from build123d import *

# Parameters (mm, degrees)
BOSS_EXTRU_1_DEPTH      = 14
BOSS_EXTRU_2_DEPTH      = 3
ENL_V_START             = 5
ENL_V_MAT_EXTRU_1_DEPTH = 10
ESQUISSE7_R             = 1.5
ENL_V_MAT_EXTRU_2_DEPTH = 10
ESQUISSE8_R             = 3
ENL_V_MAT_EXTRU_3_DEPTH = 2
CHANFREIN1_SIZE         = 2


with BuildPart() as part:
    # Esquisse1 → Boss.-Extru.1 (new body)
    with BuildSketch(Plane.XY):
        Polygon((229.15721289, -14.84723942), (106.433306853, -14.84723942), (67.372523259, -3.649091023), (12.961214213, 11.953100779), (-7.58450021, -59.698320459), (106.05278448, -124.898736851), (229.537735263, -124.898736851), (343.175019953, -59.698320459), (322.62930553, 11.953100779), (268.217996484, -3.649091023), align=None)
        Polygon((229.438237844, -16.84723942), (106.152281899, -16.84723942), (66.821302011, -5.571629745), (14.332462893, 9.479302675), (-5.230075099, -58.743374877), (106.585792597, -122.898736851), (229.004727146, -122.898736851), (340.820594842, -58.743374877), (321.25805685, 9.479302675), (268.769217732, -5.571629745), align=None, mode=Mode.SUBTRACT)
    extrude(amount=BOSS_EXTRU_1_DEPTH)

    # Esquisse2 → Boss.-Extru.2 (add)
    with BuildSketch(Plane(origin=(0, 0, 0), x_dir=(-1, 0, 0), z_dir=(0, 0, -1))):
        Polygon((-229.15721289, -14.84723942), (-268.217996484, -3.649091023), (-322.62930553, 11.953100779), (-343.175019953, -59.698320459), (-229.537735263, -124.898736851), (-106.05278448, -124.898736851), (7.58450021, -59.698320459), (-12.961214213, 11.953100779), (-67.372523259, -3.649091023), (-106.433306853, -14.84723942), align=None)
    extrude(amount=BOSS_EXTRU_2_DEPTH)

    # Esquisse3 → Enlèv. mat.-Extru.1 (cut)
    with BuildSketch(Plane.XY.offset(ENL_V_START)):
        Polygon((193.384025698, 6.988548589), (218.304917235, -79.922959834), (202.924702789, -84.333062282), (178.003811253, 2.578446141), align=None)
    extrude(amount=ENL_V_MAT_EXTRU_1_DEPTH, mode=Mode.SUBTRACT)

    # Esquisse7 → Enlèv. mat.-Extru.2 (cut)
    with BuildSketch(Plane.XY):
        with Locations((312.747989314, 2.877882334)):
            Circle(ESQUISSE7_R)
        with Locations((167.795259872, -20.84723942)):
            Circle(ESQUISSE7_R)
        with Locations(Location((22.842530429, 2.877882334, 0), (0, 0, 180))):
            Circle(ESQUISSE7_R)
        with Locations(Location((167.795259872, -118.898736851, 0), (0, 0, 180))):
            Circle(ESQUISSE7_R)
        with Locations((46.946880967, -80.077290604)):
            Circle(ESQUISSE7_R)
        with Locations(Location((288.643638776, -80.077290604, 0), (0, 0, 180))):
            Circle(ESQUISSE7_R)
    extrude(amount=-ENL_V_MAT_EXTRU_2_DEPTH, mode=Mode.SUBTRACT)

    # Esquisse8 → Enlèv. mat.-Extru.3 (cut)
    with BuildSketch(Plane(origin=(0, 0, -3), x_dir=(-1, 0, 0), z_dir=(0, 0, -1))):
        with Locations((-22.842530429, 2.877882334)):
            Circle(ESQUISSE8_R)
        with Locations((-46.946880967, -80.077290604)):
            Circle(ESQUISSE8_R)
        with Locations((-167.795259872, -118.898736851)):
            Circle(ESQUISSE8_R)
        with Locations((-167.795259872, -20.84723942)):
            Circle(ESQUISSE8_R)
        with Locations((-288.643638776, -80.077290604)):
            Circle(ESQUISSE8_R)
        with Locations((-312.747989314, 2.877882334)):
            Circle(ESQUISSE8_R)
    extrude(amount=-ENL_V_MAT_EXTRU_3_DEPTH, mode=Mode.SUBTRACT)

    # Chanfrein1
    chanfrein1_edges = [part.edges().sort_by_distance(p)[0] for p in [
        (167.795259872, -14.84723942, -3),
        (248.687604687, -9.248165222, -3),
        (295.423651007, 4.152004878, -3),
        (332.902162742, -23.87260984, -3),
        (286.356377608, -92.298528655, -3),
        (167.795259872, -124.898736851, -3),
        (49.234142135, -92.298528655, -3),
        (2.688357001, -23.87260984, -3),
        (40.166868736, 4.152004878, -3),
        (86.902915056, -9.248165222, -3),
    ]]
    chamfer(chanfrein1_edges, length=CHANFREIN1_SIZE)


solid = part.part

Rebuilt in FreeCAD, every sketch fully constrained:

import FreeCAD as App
import Part
import Sketcher
Q = App.Units.Quantity


def edges_at(feature, points):
    """Names of the edges that pass closest to the given points."""
    edges = feature.Shape.Edges
    near = lambda p: min(range(len(edges)), key=lambda i: edges[i].distToShape(Part.Vertex(*p))[0])
    return sorted({f"Edge{near(p) + 1}" for p in points})

doc = App.newDocument("Part")
body = doc.addObject("PartDesign::Body", "Body")

# Sketch on XY plane
sketch1 = body.newObject("Sketcher::SketchObject", "Sketch")
sketch1.AttachmentSupport = (doc.getObject("XY_Plane"), [""])
sketch1.MapMode = "FlatFace"
sketch1.addGeometry(Part.LineSegment(App.Vector(229.157213, -14.847239, 0), App.Vector(106.433307, -14.847239, 0)), False)
sketch1.addGeometry(Part.LineSegment(App.Vector(106.433307, -14.847239, 0), App.Vector(67.372523, -3.649091, 0)), False)
sketch1.addGeometry(Part.LineSegment(App.Vector(67.372523, -3.649091, 0), App.Vector(12.961214, 11.953101, 0)), False)
sketch1.addGeometry(Part.LineSegment(App.Vector(12.961214, 11.953101, 0), App.Vector(-7.5845, -59.69832, 0)), False)
sketch1.addGeometry(Part.LineSegment(App.Vector(-7.5845, -59.69832, 0), App.Vector(106.052784, -124.898737, 0)), False)
sketch1.addGeometry(Part.LineSegment(App.Vector(106.052784, -124.898737, 0), App.Vector(229.537735, -124.898737, 0)), False)
sketch1.addGeometry(Part.LineSegment(App.Vector(229.537735, -124.898737, 0), App.Vector(343.17502, -59.69832, 0)), False)
sketch1.addGeometry(Part.LineSegment(App.Vector(343.17502, -59.69832, 0), App.Vector(322.629306, 11.953101, 0)), False)
sketch1.addGeometry(Part.LineSegment(App.Vector(322.629306, 11.953101, 0), App.Vector(268.217996, -3.649091, 0)), False)
sketch1.addGeometry(Part.LineSegment(App.Vector(268.217996, -3.649091, 0), App.Vector(229.157213, -14.847239, 0)), False)
sketch1.addGeometry(Part.LineSegment(App.Vector(106.152282, -16.847239, 0), App.Vector(229.438238, -16.847239, 0)), False)
sketch1.addGeometry(Part.LineSegment(App.Vector(229.438238, -16.847239, 0), App.Vector(268.769218, -5.57163, 0)), False)
sketch1.addGeometry(Part.LineSegment(App.Vector(268.769218, -5.57163, 0), App.Vector(321.258057, 9.479303, 0)), False)
sketch1.addGeometry(Part.LineSegment(App.Vector(321.258057, 9.479303, 0), App.Vector(340.820595, -58.743375, 0)), False)
sketch1.addGeometry(Part.LineSegment(App.Vector(340.820595, -58.743375, 0), App.Vector(229.004727, -122.898737, 0)), False)
sketch1.addGeometry(Part.LineSegment(App.Vector(229.004727, -122.898737, 0), App.Vector(106.585793, -122.898737, 0)), False)
sketch1.addGeometry(Part.LineSegment(App.Vector(106.585793, -122.898737, 0), App.Vector(-5.230075, -58.743375, 0)), False)
sketch1.addGeometry(Part.LineSegment(App.Vector(-5.230075, -58.743375, 0), App.Vector(14.332463, 9.479303, 0)), False)
sketch1.addGeometry(Part.LineSegment(App.Vector(14.332463, 9.479303, 0), App.Vector(66.821302, -5.57163, 0)), False)
sketch1.addGeometry(Part.LineSegment(App.Vector(66.821302, -5.57163, 0), App.Vector(106.152282, -16.847239, 0)), False)
sketch1.addConstraint(Sketcher.Constraint("Coincident", 0, 2, 1, 1))
sketch1.addConstraint(Sketcher.Constraint("Coincident", 1, 2, 2, 1))
sketch1.addConstraint(Sketcher.Constraint("Coincident", 2, 2, 3, 1))
sketch1.addConstraint(Sketcher.Constraint("Coincident", 3, 2, 4, 1))
sketch1.addConstraint(Sketcher.Constraint("Coincident", 4, 2, 5, 1))
sketch1.addConstraint(Sketcher.Constraint("Coincident", 5, 2, 6, 1))
sketch1.addConstraint(Sketcher.Constraint("Coincident", 6, 2, 7, 1))
sketch1.addConstraint(Sketcher.Constraint("Coincident", 7, 2, 8, 1))
sketch1.addConstraint(Sketcher.Constraint("Coincident", 8, 2, 9, 1))
sketch1.addConstraint(Sketcher.Constraint("Coincident", 9, 2, 0, 1))
sketch1.addConstraint(Sketcher.Constraint("Coincident", 10, 2, 11, 1))
sketch1.addConstraint(Sketcher.Constraint("Coincident", 11, 2, 12, 1))
sketch1.addConstraint(Sketcher.Constraint("Coincident", 12, 2, 13, 1))
sketch1.addConstraint(Sketcher.Constraint("Coincident", 13, 2, 14, 1))
sketch1.addConstraint(Sketcher.Constraint("Coincident", 14, 2, 15, 1))
sketch1.addConstraint(Sketcher.Constraint("Coincident", 15, 2, 16, 1))
sketch1.addConstraint(Sketcher.Constraint("Coincident", 16, 2, 17, 1))
sketch1.addConstraint(Sketcher.Constraint("Coincident", 17, 2, 18, 1))
sketch1.addConstraint(Sketcher.Constraint("Coincident", 18, 2, 19, 1))
sketch1.addConstraint(Sketcher.Constraint("Coincident", 19, 2, 10, 1))
sketch1.addConstraint(Sketcher.Constraint("Horizontal", 0))
sketch1.addConstraint(Sketcher.Constraint("Horizontal", 5))
sketch1.addConstraint(Sketcher.Constraint("Horizontal", 10))
sketch1.addConstraint(Sketcher.Constraint("Horizontal", 15))
sketch1.addConstraint(Sketcher.Constraint("Perpendicular", 2, 3))
sketch1.addConstraint(Sketcher.Constraint("Perpendicular", 7, 8))
sketch1.addConstraint(Sketcher.Constraint("Parallel", 9, 11))
sketch1.addConstraint(Sketcher.Constraint("Parallel", 8, 12))
sketch1.addConstraint(Sketcher.Constraint("Perpendicular", 12, 13))
sketch1.addConstraint(Sketcher.Constraint("Parallel", 6, 14))
sketch1.addConstraint(Sketcher.Constraint("Parallel", 4, 16))
sketch1.addConstraint(Sketcher.Constraint("Parallel", 3, 17))
sketch1.addConstraint(Sketcher.Constraint("Perpendicular", 17, 18))
sketch1.addConstraint(Sketcher.Constraint("Parallel", 1, 19))
sketch1.addConstraint(Sketcher.Constraint("Horizontal", 3, 2, 6, 2))
sketch1.addConstraint(Sketcher.Constraint("Horizontal", 2, 2, 7, 2))
sketch1.addConstraint(Sketcher.Constraint("Horizontal", 1, 2, 8, 2))
sketch1.addConstraint(Sketcher.Constraint("Horizontal", 13, 2, 16, 2))
sketch1.addConstraint(Sketcher.Constraint("Horizontal", 12, 2, 17, 2))
sketch1.addConstraint(Sketcher.Constraint("Horizontal", 11, 2, 18, 2))
sketch1.addConstraint(Sketcher.Constraint("Equal", 4, 6))
sketch1.addConstraint(Sketcher.Constraint("Equal", 3, 7))
sketch1.addConstraint(Sketcher.Constraint("Equal", 1, 9))
sketch1.addConstraint(Sketcher.Constraint("Angle", 2, Q("164 deg")))
sketch1.addConstraint(Sketcher.Constraint("DistanceY", 10, 2, 9, 2, Q("2 mm")))
sketch1.addConstraint(Sketcher.Constraint("DistanceY", 5, 2, 14, 2, Q("2 mm")))
sketch1.addConstraint(Sketcher.Constraint("DistanceX", 0, 2, 7, 2, Q("216.195999 mm")))
sketch1.addConstraint(Sketcher.Constraint("DistanceX", 5, 1, 5, 2, Q("123.484951 mm")))
sketch1.addConstraint(Sketcher.Constraint("DistanceY", -1, 1, 2, 2, Q("11.953101 mm")))
sketch1.addConstraint(Sketcher.Constraint("DistanceX", 3, 2, -1, 1, Q("7.5845 mm")))
sketch1.addConstraint(Sketcher.Constraint("DistanceY", 12, 2, 7, 2, Q("2.473798 mm")))
sketch1.addConstraint(Sketcher.Constraint("DistanceX", 8, 2, 13, 2, Q("72.602598 mm")))
sketch1.addConstraint(Sketcher.Constraint("DistanceX", 16, 2, 1, 2, Q("72.602598 mm")))
sketch1.addConstraint(Sketcher.Constraint("Distance", 4, Q("131.01346 mm")))
sketch1.addConstraint(Sketcher.Constraint("Distance", 12, Q("54.60411 mm")))
sketch1.addConstraint(Sketcher.Constraint("DistanceX", 0, 2, 0, 1, Q("122.723906 mm")))
sketch1.addConstraint(Sketcher.Constraint("DistanceX", 10, 1, 10, 2, Q("123.285956 mm")))
sketch1.addConstraint(Sketcher.Constraint("DistanceX", 15, 2, 15, 1, Q("122.418935 mm")))
sketch1.addConstraint(Sketcher.Constraint("DistanceY", 0, 2, -1, 1, Q("14.847239 mm")))
sketch1.addConstraint(Sketcher.Constraint("DistanceY", 1, 2, -1, 1, Q("3.649091 mm")))
pad1 = body.newObject("PartDesign::Pad", "Pad")
pad1.Profile = sketch1
pad1.Length = 14

# Sketch on XY plane
sketch2 = body.newObject("Sketcher::SketchObject", "Sketch001")
sketch2.AttachmentSupport = (doc.getObject("XY_Plane"), [""])
sketch2.MapMode = "FlatFace"
sketch2.addGeometry(Part.LineSegment(App.Vector(229.157213, -14.847239, 0), App.Vector(268.217996, -3.649091, 0)), False)
sketch2.addGeometry(Part.LineSegment(App.Vector(268.217996, -3.649091, 0), App.Vector(322.629306, 11.953101, 0)), False)
sketch2.addGeometry(Part.LineSegment(App.Vector(322.629306, 11.953101, 0), App.Vector(343.17502, -59.69832, 0)), False)
sketch2.addGeometry(Part.LineSegment(App.Vector(343.17502, -59.69832, 0), App.Vector(229.537735, -124.898737, 0)), False)
sketch2.addGeometry(Part.LineSegment(App.Vector(229.537735, -124.898737, 0), App.Vector(106.052784, -124.898737, 0)), False)
sketch2.addGeometry(Part.LineSegment(App.Vector(106.052784, -124.898737, 0), App.Vector(-7.5845, -59.69832, 0)), False)
sketch2.addGeometry(Part.LineSegment(App.Vector(-7.5845, -59.69832, 0), App.Vector(12.961214, 11.953101, 0)), False)
sketch2.addGeometry(Part.LineSegment(App.Vector(12.961214, 11.953101, 0), App.Vector(67.372523, -3.649091, 0)), False)
sketch2.addGeometry(Part.LineSegment(App.Vector(67.372523, -3.649091, 0), App.Vector(106.433307, -14.847239, 0)), False)
sketch2.addGeometry(Part.LineSegment(App.Vector(106.433307, -14.847239, 0), App.Vector(229.157213, -14.847239, 0)), False)
sketch2.addConstraint(Sketcher.Constraint("Coincident", 0, 2, 1, 1))
sketch2.addConstraint(Sketcher.Constraint("Coincident", 1, 2, 2, 1))
sketch2.addConstraint(Sketcher.Constraint("Coincident", 2, 2, 3, 1))
sketch2.addConstraint(Sketcher.Constraint("Coincident", 3, 2, 4, 1))
sketch2.addConstraint(Sketcher.Constraint("Coincident", 4, 2, 5, 1))
sketch2.addConstraint(Sketcher.Constraint("Coincident", 5, 2, 6, 1))
sketch2.addConstraint(Sketcher.Constraint("Coincident", 6, 2, 7, 1))
sketch2.addConstraint(Sketcher.Constraint("Coincident", 7, 2, 8, 1))
sketch2.addConstraint(Sketcher.Constraint("Coincident", 8, 2, 9, 1))
sketch2.addConstraint(Sketcher.Constraint("Coincident", 9, 2, 0, 1))
sketch2.addConstraint(Sketcher.Constraint("Horizontal", 4))
sketch2.addConstraint(Sketcher.Constraint("Horizontal", 9))
sketch2.addConstraint(Sketcher.Constraint("Perpendicular", 1, 2))
sketch2.addConstraint(Sketcher.Constraint("Perpendicular", 6, 7))
sketch2.addConstraint(Sketcher.Constraint("Horizontal", 2, 2, 5, 2))
sketch2.addConstraint(Sketcher.Constraint("Horizontal", 1, 2, 6, 2))
sketch2.addConstraint(Sketcher.Constraint("Horizontal", 0, 2, 7, 2))
sketch2.addConstraint(Sketcher.Constraint("Equal", 3, 5))
sketch2.addConstraint(Sketcher.Constraint("Equal", 2, 6))
sketch2.addConstraint(Sketcher.Constraint("Equal", 0, 8))
sketch2.addConstraint(Sketcher.Constraint("Angle", 1, Q("16 deg")))
sketch2.addConstraint(Sketcher.Constraint("DistanceX", 4, 2, 4, 1, Q("123.484951 mm")))
sketch2.addConstraint(Sketcher.Constraint("DistanceY", -1, 1, 1, 2, Q("11.953101 mm")))
sketch2.addConstraint(Sketcher.Constraint("DistanceX", 5, 2, -1, 1, Q("7.5845 mm")))
sketch2.addConstraint(Sketcher.Constraint("Distance", 3, Q("131.01346 mm")))
sketch2.addConstraint(Sketcher.Constraint("DistanceX", 9, 1, 9, 2, Q("122.723906 mm")))
sketch2.addConstraint(Sketcher.Constraint("DistanceY", 0, 2, -1, 1, Q("3.649091 mm")))
sketch2.addConstraint(Sketcher.Constraint("DistanceX", -1, 1, 2, 2, Q("343.17502 mm")))
sketch2.addConstraint(Sketcher.Constraint("DistanceY", 2, 2, -1, 1, Q("59.69832 mm")))
sketch2.addConstraint(Sketcher.Constraint("DistanceY", 8, 2, -1, 1, Q("14.847239 mm")))
pad2 = body.newObject("PartDesign::Pad", "Pad001")
pad2.Profile = sketch2
pad2.Length = 3
pad2.Reversed = True

# Sketch on XY plane
sketch3 = body.newObject("Sketcher::SketchObject", "Sketch002")
sketch3.AttachmentSupport = (doc.getObject("XY_Plane"), [""])
sketch3.MapMode = "FlatFace"
sketch3.AttachmentOffset = App.Placement(App.Vector(0, 0, 5), App.Rotation())
sketch3.addGeometry(Part.LineSegment(App.Vector(218.304917, -79.92296, 0), App.Vector(193.384026, 6.988549, 0)), False)
sketch3.addGeometry(Part.LineSegment(App.Vector(193.384026, 6.988549, 0), App.Vector(178.003811, 2.578446, 0)), False)
sketch3.addGeometry(Part.LineSegment(App.Vector(178.003811, 2.578446, 0), App.Vector(202.924703, -84.333062, 0)), False)
sketch3.addGeometry(Part.LineSegment(App.Vector(202.924703, -84.333062, 0), App.Vector(218.304917, -79.92296, 0)), False)
sketch3.addConstraint(Sketcher.Constraint("Coincident", 0, 2, 1, 1))
sketch3.addConstraint(Sketcher.Constraint("Coincident", 1, 2, 2, 1))
sketch3.addConstraint(Sketcher.Constraint("Coincident", 2, 2, 3, 1))
sketch3.addConstraint(Sketcher.Constraint("Coincident", 3, 2, 0, 1))
sketch3.addConstraint(Sketcher.Constraint("Perpendicular", 0, 1))
sketch3.addConstraint(Sketcher.Constraint("Perpendicular", 1, 2))
sketch3.addConstraint(Sketcher.Constraint("Perpendicular", 2, 3))
sketch3.addConstraint(Sketcher.Constraint("Distance", 1, Q("16 mm")))
sketch3.addConstraint(Sketcher.Constraint("DistanceY", -1, 1, 0, 2, Q("6.988549 mm")))
sketch3.addConstraint(Sketcher.Constraint("DistanceX", -1, 1, 1, 2, Q("178.003811 mm")))
sketch3.addConstraint(Sketcher.Constraint("DistanceY", 3, 2, -1, 1, Q("79.92296 mm")))
sketch3.addConstraint(Sketcher.Constraint("DistanceX", 1, 2, 2, 2, Q("24.920892 mm")))
pocket1 = body.newObject("PartDesign::Pocket", "Pocket")
pocket1.Profile = sketch3
pocket1.Length = 10
pocket1.Reversed = True

# Sketch on XY plane
sketch4 = body.newObject("Sketcher::SketchObject", "Sketch003")
sketch4.AttachmentSupport = (doc.getObject("XY_Plane"), [""])
sketch4.MapMode = "FlatFace"
sketch4.addGeometry(Part.Circle(App.Vector(312.747989, 2.877882, 0), App.Vector(0, 0, 1), 1.5), False)
sketch4.addGeometry(Part.Circle(App.Vector(167.79526, -20.847239, 0), App.Vector(0, 0, 1), 1.5), False)
sketch4.addGeometry(Part.Circle(App.Vector(22.84253, 2.877882, 0), App.Vector(0, 0, 1), 1.5), False)
sketch4.addGeometry(Part.Circle(App.Vector(167.79526, -118.898737, 0), App.Vector(0, 0, 1), 1.5), False)
sketch4.addGeometry(Part.Circle(App.Vector(46.946881, -80.077291, 0), App.Vector(0, 0, 1), 1.5), False)
sketch4.addGeometry(Part.Circle(App.Vector(288.643639, -80.077291, 0), App.Vector(0, 0, 1), 1.5), False)
sketch4.addConstraint(Sketcher.Constraint("Equal", 0, 1))
sketch4.addConstraint(Sketcher.Constraint("Equal", 1, 2))
sketch4.addConstraint(Sketcher.Constraint("Equal", 2, 3))
sketch4.addConstraint(Sketcher.Constraint("Equal", 3, 4))
sketch4.addConstraint(Sketcher.Constraint("Equal", 4, 5))
sketch4.addConstraint(Sketcher.Constraint("Horizontal", 0, 3, 2, 3))
sketch4.addConstraint(Sketcher.Constraint("Horizontal", 4, 3, 5, 3))
sketch4.addConstraint(Sketcher.Constraint("Vertical", 1, 3, 3, 3))
sketch4.addConstraint(Sketcher.Constraint("Diameter", 0, Q("3 mm")))
sketch4.addConstraint(Sketcher.Constraint("DistanceX", -1, 1, 0, 3, Q("312.747989 mm")))
sketch4.addConstraint(Sketcher.Constraint("DistanceX", -1, 1, 1, 3, Q("167.79526 mm")))
sketch4.addConstraint(Sketcher.Constraint("DistanceY", 1, 3, -1, 1, Q("20.847239 mm")))
sketch4.addConstraint(Sketcher.Constraint("DistanceX", -1, 1, 2, 3, Q("22.84253 mm")))
sketch4.addConstraint(Sketcher.Constraint("DistanceX", -1, 1, 4, 3, Q("46.946881 mm")))
sketch4.addConstraint(Sketcher.Constraint("DistanceY", 4, 3, -1, 1, Q("80.077291 mm")))
sketch4.addConstraint(Sketcher.Constraint("DistanceX", -1, 1, 5, 3, Q("288.643639 mm")))
sketch4.addConstraint(Sketcher.Constraint("DistanceY", 1, 3, 0, 3, Q("23.725122 mm")))
sketch4.addConstraint(Sketcher.Constraint("DistanceY", 3, 3, 0, 3, Q("121.776619 mm")))
pocket2 = body.newObject("PartDesign::Pocket", "Pocket001")
pocket2.Profile = sketch4
pocket2.Length = 10

# Sketch on XY plane
sketch5 = body.newObject("Sketcher::SketchObject", "Sketch004")
sketch5.AttachmentSupport = (doc.getObject("XY_Plane"), [""])
sketch5.MapMode = "FlatFace"
sketch5.AttachmentOffset = App.Placement(App.Vector(0, 0, -3), App.Rotation())
sketch5.addGeometry(Part.Circle(App.Vector(22.84253, 2.877882, 0), App.Vector(0, 0, 1), 3), False)
sketch5.addGeometry(Part.Circle(App.Vector(46.946881, -80.077291, 0), App.Vector(0, 0, 1), 3), False)
sketch5.addGeometry(Part.Circle(App.Vector(167.79526, -118.898737, 0), App.Vector(0, 0, 1), 3), False)
sketch5.addGeometry(Part.Circle(App.Vector(167.79526, -20.847239, 0), App.Vector(0, 0, 1), 3), False)
sketch5.addGeometry(Part.Circle(App.Vector(288.643639, -80.077291, 0), App.Vector(0, 0, 1), 3), False)
sketch5.addGeometry(Part.Circle(App.Vector(312.747989, 2.877882, 0), App.Vector(0, 0, 1), 3), False)
sketch5.addConstraint(Sketcher.Constraint("Equal", 0, 1))
sketch5.addConstraint(Sketcher.Constraint("Equal", 1, 2))
sketch5.addConstraint(Sketcher.Constraint("Equal", 2, 3))
sketch5.addConstraint(Sketcher.Constraint("Equal", 3, 4))
sketch5.addConstraint(Sketcher.Constraint("Equal", 4, 5))
sketch5.addConstraint(Sketcher.Constraint("Horizontal", 1, 3, 4, 3))
sketch5.addConstraint(Sketcher.Constraint("Horizontal", 0, 3, 5, 3))
sketch5.addConstraint(Sketcher.Constraint("Vertical", 2, 3, 3, 3))
sketch5.addConstraint(Sketcher.Constraint("Diameter", 0, Q("6 mm")))
sketch5.addConstraint(Sketcher.Constraint("DistanceX", -1, 1, 0, 3, Q("22.84253 mm")))
sketch5.addConstraint(Sketcher.Constraint("DistanceX", -1, 1, 1, 3, Q("46.946881 mm")))
sketch5.addConstraint(Sketcher.Constraint("DistanceY", 1, 3, -1, 1, Q("80.077291 mm")))
sketch5.addConstraint(Sketcher.Constraint("DistanceX", -1, 1, 2, 3, Q("167.79526 mm")))
sketch5.addConstraint(Sketcher.Constraint("DistanceY", 3, 3, -1, 1, Q("20.847239 mm")))
sketch5.addConstraint(Sketcher.Constraint("DistanceX", -1, 1, 4, 3, Q("288.643639 mm")))
sketch5.addConstraint(Sketcher.Constraint("DistanceX", -1, 1, 5, 3, Q("312.747989 mm")))
sketch5.addConstraint(Sketcher.Constraint("DistanceY", 2, 3, 0, 3, Q("121.776619 mm")))
sketch5.addConstraint(Sketcher.Constraint("DistanceY", 3, 3, 0, 3, Q("23.725122 mm")))
pocket3 = body.newObject("PartDesign::Pocket", "Pocket002")
pocket3.Profile = sketch5
pocket3.Length = 2
pocket3.Reversed = True
doc.recompute()

chamfer = body.newObject("PartDesign::Chamfer", "Chamfer")
chamfer.Base = (pocket3, edges_at(pocket3, [
    (167.795, -14.847, -3),
    (248.688, -9.248, -3),
    (295.424, 4.152, -3),
    (332.902, -23.873, -3),
    (286.356, -92.299, -3),
    (167.795, -124.899, -3),
    (49.234, -92.299, -3),
    (2.688, -23.873, -3),
    (40.167, 4.152, -3),
    (86.903, -9.248, -3),
]))
chamfer.Size = 2

doc.recompute()
